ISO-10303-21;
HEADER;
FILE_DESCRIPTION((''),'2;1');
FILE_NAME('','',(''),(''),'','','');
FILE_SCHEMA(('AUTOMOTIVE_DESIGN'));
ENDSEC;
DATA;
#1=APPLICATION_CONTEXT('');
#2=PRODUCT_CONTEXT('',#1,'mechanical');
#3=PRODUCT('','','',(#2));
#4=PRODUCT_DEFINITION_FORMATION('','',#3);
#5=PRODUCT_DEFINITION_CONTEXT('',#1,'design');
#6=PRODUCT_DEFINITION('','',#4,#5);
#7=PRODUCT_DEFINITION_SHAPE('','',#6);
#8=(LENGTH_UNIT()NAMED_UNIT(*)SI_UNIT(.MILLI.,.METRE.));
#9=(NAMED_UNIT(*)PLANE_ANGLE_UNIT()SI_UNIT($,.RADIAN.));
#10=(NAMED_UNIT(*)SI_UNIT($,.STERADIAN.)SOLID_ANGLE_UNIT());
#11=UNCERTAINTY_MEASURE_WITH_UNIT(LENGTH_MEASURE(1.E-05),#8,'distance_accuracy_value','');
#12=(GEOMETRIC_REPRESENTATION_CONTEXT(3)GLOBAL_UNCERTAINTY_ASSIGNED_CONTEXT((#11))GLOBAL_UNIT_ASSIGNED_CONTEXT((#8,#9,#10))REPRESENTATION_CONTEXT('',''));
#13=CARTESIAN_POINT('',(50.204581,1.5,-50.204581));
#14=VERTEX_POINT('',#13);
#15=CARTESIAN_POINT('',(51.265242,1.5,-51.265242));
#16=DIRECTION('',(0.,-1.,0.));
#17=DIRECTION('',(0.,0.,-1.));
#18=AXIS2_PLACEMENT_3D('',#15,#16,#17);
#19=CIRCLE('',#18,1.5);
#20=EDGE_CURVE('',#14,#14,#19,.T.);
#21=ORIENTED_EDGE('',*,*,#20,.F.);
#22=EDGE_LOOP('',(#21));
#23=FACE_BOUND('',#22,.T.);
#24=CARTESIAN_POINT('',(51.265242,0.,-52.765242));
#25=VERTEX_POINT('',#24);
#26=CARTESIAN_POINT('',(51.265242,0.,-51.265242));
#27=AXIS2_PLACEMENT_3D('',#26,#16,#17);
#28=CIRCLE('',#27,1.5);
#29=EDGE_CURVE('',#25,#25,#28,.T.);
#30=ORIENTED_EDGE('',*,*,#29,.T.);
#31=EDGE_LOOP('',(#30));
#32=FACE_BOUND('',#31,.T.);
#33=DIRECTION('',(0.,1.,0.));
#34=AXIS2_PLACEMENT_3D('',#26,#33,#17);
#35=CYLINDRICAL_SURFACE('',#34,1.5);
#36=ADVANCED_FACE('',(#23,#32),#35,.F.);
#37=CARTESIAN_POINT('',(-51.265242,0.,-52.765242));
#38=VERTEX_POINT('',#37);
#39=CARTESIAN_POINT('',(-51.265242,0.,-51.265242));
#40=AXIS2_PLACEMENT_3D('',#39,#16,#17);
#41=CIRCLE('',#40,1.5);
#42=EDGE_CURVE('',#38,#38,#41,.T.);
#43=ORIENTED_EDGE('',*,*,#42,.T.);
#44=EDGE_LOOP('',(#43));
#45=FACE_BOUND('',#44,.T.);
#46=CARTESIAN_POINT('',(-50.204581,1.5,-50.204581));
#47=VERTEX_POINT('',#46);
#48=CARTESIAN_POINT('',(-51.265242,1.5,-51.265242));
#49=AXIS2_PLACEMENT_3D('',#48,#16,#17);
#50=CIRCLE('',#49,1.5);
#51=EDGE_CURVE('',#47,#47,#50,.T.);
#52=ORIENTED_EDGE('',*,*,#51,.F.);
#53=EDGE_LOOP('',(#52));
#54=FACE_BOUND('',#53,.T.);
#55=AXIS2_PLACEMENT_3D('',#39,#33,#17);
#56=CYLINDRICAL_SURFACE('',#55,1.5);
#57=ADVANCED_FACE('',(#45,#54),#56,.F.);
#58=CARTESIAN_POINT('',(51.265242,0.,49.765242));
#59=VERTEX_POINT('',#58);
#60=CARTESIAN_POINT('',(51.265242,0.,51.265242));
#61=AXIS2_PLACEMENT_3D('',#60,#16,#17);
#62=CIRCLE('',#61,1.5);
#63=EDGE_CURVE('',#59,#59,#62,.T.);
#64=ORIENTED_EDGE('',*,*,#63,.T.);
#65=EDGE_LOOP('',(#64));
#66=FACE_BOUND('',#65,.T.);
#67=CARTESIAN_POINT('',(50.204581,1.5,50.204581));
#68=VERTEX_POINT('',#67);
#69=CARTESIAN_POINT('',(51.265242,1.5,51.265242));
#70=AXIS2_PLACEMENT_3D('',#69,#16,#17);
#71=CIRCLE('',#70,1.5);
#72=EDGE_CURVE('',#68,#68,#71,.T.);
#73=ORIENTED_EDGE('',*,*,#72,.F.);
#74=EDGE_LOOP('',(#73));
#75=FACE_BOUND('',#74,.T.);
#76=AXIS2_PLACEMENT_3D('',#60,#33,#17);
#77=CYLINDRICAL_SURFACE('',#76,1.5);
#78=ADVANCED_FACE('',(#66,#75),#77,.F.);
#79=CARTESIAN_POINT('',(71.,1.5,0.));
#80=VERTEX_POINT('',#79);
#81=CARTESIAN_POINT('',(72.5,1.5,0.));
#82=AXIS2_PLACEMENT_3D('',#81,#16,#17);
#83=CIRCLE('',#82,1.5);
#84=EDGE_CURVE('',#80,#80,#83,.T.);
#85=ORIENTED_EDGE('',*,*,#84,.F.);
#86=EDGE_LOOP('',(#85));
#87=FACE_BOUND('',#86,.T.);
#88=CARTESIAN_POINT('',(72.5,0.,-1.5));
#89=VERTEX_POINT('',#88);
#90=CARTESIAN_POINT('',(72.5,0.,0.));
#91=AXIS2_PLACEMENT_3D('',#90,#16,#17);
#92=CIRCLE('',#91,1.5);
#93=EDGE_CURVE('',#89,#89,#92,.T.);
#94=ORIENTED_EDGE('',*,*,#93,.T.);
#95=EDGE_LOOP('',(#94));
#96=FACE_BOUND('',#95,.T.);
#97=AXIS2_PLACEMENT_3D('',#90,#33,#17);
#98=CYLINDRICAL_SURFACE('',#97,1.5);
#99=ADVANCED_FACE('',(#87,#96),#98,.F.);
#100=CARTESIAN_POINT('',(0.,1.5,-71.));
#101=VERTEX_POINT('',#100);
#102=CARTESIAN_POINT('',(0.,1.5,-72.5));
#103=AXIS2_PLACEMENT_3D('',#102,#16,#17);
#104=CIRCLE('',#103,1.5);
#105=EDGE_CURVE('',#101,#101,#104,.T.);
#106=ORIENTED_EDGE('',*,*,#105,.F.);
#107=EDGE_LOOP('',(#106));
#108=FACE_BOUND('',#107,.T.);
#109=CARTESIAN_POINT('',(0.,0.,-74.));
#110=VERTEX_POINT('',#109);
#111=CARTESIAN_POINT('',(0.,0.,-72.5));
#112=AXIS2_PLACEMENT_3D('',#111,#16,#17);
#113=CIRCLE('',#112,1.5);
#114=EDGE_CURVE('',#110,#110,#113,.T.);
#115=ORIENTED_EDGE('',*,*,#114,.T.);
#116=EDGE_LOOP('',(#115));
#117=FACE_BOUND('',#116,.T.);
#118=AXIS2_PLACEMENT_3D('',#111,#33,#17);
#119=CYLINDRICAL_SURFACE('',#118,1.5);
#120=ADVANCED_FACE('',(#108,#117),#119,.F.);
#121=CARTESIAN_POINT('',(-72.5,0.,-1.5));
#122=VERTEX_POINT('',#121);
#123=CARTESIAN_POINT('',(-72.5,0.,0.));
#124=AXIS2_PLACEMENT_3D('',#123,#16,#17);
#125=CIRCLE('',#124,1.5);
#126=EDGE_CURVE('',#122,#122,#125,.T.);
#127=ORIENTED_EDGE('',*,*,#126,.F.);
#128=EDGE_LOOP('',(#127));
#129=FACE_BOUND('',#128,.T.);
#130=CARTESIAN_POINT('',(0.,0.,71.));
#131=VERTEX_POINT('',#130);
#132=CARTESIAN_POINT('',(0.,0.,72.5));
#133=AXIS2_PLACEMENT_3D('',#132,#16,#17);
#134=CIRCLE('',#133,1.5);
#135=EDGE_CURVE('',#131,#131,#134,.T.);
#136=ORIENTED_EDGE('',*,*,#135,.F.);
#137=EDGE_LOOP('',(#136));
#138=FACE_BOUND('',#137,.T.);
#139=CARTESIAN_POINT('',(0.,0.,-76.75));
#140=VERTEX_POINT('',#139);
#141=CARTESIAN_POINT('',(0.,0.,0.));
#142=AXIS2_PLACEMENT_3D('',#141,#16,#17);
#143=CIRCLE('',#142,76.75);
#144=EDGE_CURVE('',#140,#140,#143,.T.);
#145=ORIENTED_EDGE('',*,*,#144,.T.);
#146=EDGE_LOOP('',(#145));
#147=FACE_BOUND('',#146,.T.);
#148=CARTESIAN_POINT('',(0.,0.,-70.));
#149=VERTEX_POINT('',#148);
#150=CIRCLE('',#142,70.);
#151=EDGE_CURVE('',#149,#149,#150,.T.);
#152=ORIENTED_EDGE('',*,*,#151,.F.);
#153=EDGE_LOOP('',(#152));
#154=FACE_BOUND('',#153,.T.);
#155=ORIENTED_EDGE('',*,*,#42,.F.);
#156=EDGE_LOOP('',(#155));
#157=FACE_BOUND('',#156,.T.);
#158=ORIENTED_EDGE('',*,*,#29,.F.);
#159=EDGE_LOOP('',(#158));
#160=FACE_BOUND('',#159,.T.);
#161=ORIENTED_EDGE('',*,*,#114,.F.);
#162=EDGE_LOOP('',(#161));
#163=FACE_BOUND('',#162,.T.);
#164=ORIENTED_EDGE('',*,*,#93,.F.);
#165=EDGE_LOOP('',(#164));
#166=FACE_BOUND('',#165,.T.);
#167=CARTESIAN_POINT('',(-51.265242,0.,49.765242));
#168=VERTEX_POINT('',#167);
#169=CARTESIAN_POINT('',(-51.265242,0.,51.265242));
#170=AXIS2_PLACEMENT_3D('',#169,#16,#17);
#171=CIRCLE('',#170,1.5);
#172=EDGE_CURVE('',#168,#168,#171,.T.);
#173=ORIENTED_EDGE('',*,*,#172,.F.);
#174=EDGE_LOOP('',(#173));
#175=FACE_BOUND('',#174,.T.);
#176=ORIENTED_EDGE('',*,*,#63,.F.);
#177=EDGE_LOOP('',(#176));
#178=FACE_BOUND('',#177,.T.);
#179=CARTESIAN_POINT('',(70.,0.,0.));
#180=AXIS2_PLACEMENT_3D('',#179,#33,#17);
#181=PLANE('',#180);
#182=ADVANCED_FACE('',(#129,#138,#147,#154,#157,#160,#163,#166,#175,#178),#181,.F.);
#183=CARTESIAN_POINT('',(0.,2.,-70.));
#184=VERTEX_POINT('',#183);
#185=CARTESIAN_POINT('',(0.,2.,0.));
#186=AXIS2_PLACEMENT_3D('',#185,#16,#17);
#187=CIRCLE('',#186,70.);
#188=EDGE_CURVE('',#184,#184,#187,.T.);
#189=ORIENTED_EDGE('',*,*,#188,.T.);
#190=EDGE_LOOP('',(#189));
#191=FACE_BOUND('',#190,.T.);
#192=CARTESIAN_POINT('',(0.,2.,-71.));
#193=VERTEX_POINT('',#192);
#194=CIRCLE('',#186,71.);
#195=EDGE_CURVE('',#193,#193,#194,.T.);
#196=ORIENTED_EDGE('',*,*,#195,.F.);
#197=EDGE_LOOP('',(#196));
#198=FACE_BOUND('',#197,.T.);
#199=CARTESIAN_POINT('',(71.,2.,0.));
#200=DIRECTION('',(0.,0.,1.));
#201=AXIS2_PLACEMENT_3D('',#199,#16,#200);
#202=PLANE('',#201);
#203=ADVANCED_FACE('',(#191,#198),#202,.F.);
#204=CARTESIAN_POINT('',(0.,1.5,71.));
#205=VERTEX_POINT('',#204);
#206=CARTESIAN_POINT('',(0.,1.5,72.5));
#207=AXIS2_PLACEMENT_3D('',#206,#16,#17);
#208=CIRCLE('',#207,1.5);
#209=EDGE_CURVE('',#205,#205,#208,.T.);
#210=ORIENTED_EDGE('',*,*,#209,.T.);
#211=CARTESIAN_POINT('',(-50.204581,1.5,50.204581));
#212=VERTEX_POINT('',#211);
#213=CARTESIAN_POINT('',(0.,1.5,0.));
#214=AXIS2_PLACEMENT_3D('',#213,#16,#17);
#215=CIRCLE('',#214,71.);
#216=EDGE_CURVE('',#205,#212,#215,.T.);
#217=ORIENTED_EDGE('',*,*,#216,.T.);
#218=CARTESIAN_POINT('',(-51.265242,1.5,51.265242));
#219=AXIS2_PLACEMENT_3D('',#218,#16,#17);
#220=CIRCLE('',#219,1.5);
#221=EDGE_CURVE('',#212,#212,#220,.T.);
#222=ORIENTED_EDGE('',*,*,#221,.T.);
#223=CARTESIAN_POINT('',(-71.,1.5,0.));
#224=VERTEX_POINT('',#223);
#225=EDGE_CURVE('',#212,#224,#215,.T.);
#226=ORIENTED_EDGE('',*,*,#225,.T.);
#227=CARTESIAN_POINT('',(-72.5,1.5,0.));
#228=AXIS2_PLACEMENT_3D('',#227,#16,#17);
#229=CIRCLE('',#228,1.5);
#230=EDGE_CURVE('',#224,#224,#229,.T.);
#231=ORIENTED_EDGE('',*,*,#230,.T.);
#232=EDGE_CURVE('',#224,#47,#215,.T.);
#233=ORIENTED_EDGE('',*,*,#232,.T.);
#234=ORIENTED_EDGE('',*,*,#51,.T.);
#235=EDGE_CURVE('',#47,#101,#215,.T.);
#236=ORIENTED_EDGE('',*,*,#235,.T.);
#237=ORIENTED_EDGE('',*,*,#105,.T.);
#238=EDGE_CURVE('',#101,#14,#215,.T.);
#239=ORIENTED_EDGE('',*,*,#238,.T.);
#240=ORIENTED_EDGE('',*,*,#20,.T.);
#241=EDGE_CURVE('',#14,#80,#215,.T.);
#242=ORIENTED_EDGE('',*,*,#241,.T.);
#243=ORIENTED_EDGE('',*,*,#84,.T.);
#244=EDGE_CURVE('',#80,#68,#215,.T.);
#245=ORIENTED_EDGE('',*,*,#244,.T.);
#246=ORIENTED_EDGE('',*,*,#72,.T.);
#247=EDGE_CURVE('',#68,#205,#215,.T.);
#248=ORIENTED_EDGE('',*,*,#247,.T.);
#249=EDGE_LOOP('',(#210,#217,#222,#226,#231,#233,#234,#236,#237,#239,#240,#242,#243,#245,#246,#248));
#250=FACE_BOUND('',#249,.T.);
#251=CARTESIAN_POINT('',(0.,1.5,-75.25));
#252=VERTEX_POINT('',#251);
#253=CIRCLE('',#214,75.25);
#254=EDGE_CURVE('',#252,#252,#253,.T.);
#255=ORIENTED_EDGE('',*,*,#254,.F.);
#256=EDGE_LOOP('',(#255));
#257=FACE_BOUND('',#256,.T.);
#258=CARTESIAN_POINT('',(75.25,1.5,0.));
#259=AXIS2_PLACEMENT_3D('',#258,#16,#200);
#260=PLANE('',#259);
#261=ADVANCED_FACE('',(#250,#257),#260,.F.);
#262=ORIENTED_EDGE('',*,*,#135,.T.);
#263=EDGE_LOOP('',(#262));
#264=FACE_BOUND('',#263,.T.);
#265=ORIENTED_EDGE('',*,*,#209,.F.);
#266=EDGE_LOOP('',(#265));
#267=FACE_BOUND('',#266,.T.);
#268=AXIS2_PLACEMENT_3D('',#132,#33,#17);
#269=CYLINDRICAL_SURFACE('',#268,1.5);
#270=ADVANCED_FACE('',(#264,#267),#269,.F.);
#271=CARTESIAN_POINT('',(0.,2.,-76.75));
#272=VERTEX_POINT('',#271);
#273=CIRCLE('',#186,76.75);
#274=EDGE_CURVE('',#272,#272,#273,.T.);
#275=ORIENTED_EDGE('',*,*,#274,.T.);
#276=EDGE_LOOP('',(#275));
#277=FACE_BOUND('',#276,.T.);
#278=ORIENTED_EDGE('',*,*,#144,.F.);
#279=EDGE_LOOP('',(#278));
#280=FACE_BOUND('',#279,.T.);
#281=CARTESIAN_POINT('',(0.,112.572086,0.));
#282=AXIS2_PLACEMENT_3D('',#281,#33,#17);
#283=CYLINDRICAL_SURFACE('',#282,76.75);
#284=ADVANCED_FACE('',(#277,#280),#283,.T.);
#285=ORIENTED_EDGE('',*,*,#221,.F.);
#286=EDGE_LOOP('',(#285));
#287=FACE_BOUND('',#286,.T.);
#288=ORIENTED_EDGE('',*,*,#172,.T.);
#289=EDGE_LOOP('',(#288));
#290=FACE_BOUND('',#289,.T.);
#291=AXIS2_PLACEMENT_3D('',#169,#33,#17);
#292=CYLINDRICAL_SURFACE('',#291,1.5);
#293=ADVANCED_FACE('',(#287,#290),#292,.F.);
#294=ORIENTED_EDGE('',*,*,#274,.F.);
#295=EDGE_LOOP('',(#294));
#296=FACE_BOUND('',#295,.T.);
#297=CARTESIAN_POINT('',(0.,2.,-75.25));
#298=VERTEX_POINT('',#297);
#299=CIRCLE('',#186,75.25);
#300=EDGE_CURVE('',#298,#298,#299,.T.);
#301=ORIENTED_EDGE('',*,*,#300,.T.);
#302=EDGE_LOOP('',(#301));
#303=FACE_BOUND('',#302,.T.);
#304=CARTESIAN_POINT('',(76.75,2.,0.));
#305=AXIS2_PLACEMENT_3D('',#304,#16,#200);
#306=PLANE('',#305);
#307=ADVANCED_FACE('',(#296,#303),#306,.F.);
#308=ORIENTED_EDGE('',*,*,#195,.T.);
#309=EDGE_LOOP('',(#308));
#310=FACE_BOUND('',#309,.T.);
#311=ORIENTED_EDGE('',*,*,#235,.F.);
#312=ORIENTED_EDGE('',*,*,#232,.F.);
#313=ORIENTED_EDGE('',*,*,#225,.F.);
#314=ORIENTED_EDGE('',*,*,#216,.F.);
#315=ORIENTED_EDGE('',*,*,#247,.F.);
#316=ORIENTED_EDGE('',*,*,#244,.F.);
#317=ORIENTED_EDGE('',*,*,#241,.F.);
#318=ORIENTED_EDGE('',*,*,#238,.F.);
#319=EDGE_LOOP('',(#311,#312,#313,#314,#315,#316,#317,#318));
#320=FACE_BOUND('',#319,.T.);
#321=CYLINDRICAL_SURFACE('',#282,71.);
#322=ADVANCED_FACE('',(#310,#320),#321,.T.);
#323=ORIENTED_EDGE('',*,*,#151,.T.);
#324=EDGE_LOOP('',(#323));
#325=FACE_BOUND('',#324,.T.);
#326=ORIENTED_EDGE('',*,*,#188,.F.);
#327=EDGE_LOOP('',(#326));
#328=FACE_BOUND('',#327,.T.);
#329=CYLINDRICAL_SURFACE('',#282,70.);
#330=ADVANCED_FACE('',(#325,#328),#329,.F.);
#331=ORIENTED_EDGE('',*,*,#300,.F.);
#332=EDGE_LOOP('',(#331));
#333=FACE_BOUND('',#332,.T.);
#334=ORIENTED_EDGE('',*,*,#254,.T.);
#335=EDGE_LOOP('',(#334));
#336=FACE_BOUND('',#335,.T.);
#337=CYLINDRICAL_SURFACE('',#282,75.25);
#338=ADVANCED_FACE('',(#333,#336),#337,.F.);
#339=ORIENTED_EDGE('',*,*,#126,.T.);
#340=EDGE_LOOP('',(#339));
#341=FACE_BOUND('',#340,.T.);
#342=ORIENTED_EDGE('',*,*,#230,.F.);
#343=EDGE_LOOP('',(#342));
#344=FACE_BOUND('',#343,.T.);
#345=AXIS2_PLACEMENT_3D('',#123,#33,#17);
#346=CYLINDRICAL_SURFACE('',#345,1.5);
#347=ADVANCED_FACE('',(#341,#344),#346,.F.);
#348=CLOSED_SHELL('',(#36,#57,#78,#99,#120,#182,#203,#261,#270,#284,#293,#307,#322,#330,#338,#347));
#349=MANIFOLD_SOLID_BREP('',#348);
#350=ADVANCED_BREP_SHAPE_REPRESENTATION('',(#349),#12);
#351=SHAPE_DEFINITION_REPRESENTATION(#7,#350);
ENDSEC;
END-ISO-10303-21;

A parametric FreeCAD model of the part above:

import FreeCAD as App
import Part
import Sketcher

V = App.Vector

doc = App.newDocument("Part")
params = doc.addObject("Spreadsheet::Sheet", "Params")
for row, (alias, value) in enumerate([
    ("sketch1_width", "1 mm"),
    ("sketch1_height", "2 mm"),
    ("sketch1_width2", "1.5 mm"),
    ("sketch1_height2", "0.5 mm"),
    ("sketch1_width3", "6.75 mm"),
    ("revolution_angle", "360 deg"),
    ("sketch2_diameter", "3 mm"),
], start=1):
    params.set(f"A{row}", alias)
    params.set(f"B{row}", "=" + value)
    params.setAlias(f"B{row}", alias)

body = doc.addObject("PartDesign::Body", "Body")

# Sketch on XY plane
sketch1 = body.newObject("Sketcher::SketchObject", "Sketch")
sketch1.AttachmentSupport = (doc.getObject("XY_Plane"), [""])
sketch1.MapMode = "FlatFace"
sketch1.addGeometry([
    Part.LineSegment(V(70, 0, 0), V(76.8, 0, 0)),  # 0
    Part.LineSegment(V(76.8, 0, 0), V(76.8, 2, 0)),  # 1
    Part.LineSegment(V(76.8, 2, 0), V(75.2, 2, 0)),  # 2
    Part.LineSegment(V(75.2, 2, 0), V(75.2, 1.5, 0)),  # 3
    Part.LineSegment(V(75.2, 1.5, 0), V(71, 1.5, 0)),  # 4
    Part.LineSegment(V(71, 1.5, 0), V(71, 2, 0)),  # 5
    Part.LineSegment(V(71, 2, 0), V(70, 2, 0)),  # 6
    Part.LineSegment(V(70, 2, 0), V(70, 0, 0)),  # 7
], False)
sketch1.addConstraint([
    Sketcher.Constraint("Coincident", 0, 2, 1, 1),
    Sketcher.Constraint("Coincident", 1, 2, 2, 1),
    Sketcher.Constraint("Coincident", 2, 2, 3, 1),
    Sketcher.Constraint("Coincident", 3, 2, 4, 1),
    Sketcher.Constraint("Coincident", 4, 2, 5, 1),
    Sketcher.Constraint("Coincident", 5, 2, 6, 1),
    Sketcher.Constraint("Coincident", 6, 2, 7, 1),
    Sketcher.Constraint("Coincident", 7, 2, 0, 1),
    Sketcher.Constraint("Horizontal", 0),
    Sketcher.Constraint("Vertical", 1),
    Sketcher.Constraint("Horizontal", 2),
    Sketcher.Constraint("Vertical", 3),
    Sketcher.Constraint("Horizontal", 4),
    Sketcher.Constraint("Vertical", 5),
    Sketcher.Constraint("Horizontal", 6),
    Sketcher.Constraint("Vertical", 7),
    Sketcher.Constraint("PointOnObject", 0, 2, -1),
    Sketcher.Constraint("Horizontal", 2, 2, 5, 2),
    Sketcher.Constraint("DistanceX", 6, 2, 6, 1, 1.0),
    Sketcher.Constraint("DistanceY", 1, 1, 1, 2, 2.0),
    Sketcher.Constraint("DistanceX", 2, 2, 2, 1, 1.5),
    Sketcher.Constraint("DistanceY", 3, 2, 3, 1, 0.5),
    Sketcher.Constraint("DistanceX", -1, 1, 4, 2, 71.0),
    Sketcher.Constraint("DistanceX", 0, 1, 0, 2, 6.75),
])
sketch1.setExpression("Constraints[18]", "Params.sketch1_width")
sketch1.setExpression("Constraints[19]", "Params.sketch1_height")
sketch1.setExpression("Constraints[20]", "Params.sketch1_width2")
sketch1.setExpression("Constraints[21]", "Params.sketch1_height2")
sketch1.setExpression("Constraints[23]", "Params.sketch1_width3")
revolution = body.newObject("PartDesign::Revolution", "Revolution")
revolution.Profile = sketch1
revolution.ReferenceAxis = (sketch1, ["V_Axis"])
revolution.setExpression("Angle", "Params.revolution_angle")

# Sketch on XZ plane
sketch2 = body.newObject("Sketcher::SketchObject", "Sketch001")
sketch2.AttachmentSupport = (doc.getObject("XZ_Plane"), [""])
sketch2.MapMode = "FlatFace"
sketch2.AttachmentOffset = App.Placement(V(0, 0, -1.5), App.Rotation())
sketch2.addGeometry([
    Part.Circle(V(0, -72.5, 0), V(0, 0, 1), 1.5),  # 0
    Part.Circle(V(51.3, -51.3, 0), V(0, 0, 1), 1.5),  # 1
    Part.Circle(V(72.5, 0, 0), V(0, 0, 1), 1.5),  # 2
    Part.Circle(V(51.3, 51.3, 0), V(0, 0, 1), 1.5),  # 3
    Part.Circle(V(0, 72.5, 0), V(0, 0, 1), 1.5),  # 4
    Part.Circle(V(-51.3, 51.3, 0), V(0, 0, 1), 1.5),  # 5
    Part.Circle(V(-72.5, 0, 0), V(0, 0, 1), 1.5),  # 6
    Part.Circle(V(-51.3, -51.3, 0), V(0, 0, 1), 1.5),  # 7
], False)
sketch2.addConstraint([
    Sketcher.Constraint("Equal", 0, 1),
    Sketcher.Constraint("Equal", 1, 2),
    Sketcher.Constraint("Equal", 2, 3),
    Sketcher.Constraint("Equal", 3, 4),
    Sketcher.Constraint("Equal", 4, 5),
    Sketcher.Constraint("Equal", 5, 6),
    Sketcher.Constraint("Equal", 6, 7),
    Sketcher.Constraint("Symmetric", 0, 3, 4, 3, -1, 1),
    Sketcher.Constraint("Symmetric", 1, 3, 5, 3, -1, 1),
    Sketcher.Constraint("Symmetric", 2, 3, 6, 3, -1, 1),
    Sketcher.Constraint("Symmetric", 3, 3, 7, 3, -1, 1),
    Sketcher.Constraint("Symmetric", 3, 3, 5, 3, -2),
    Sketcher.Constraint("PointOnObject", 0, 3, -2),
    Sketcher.Constraint("PointOnObject", 2, 3, -1),
    Sketcher.Constraint("Diameter", 0, 3.0),
    Sketcher.Constraint("DistanceY", 0, 3, 4, 3, 145.0),
    Sketcher.Constraint("DistanceX", -1, 1, 2, 3, 72.5),
    Sketcher.Constraint("DistanceX", -1, 1, 1, 3, 51.265242),
    Sketcher.Constraint("DistanceY", 1, 3, -1, 1, 51.265242),
])
sketch2.setExpression("Constraints[14]", "Params.sketch2_diameter")
pocket1 = body.newObject("PartDesign::Pocket", "Pocket")
pocket1.Profile = sketch2
pocket1.Type = "ThroughAll"
pocket1.Reversed = True

doc.recompute()
